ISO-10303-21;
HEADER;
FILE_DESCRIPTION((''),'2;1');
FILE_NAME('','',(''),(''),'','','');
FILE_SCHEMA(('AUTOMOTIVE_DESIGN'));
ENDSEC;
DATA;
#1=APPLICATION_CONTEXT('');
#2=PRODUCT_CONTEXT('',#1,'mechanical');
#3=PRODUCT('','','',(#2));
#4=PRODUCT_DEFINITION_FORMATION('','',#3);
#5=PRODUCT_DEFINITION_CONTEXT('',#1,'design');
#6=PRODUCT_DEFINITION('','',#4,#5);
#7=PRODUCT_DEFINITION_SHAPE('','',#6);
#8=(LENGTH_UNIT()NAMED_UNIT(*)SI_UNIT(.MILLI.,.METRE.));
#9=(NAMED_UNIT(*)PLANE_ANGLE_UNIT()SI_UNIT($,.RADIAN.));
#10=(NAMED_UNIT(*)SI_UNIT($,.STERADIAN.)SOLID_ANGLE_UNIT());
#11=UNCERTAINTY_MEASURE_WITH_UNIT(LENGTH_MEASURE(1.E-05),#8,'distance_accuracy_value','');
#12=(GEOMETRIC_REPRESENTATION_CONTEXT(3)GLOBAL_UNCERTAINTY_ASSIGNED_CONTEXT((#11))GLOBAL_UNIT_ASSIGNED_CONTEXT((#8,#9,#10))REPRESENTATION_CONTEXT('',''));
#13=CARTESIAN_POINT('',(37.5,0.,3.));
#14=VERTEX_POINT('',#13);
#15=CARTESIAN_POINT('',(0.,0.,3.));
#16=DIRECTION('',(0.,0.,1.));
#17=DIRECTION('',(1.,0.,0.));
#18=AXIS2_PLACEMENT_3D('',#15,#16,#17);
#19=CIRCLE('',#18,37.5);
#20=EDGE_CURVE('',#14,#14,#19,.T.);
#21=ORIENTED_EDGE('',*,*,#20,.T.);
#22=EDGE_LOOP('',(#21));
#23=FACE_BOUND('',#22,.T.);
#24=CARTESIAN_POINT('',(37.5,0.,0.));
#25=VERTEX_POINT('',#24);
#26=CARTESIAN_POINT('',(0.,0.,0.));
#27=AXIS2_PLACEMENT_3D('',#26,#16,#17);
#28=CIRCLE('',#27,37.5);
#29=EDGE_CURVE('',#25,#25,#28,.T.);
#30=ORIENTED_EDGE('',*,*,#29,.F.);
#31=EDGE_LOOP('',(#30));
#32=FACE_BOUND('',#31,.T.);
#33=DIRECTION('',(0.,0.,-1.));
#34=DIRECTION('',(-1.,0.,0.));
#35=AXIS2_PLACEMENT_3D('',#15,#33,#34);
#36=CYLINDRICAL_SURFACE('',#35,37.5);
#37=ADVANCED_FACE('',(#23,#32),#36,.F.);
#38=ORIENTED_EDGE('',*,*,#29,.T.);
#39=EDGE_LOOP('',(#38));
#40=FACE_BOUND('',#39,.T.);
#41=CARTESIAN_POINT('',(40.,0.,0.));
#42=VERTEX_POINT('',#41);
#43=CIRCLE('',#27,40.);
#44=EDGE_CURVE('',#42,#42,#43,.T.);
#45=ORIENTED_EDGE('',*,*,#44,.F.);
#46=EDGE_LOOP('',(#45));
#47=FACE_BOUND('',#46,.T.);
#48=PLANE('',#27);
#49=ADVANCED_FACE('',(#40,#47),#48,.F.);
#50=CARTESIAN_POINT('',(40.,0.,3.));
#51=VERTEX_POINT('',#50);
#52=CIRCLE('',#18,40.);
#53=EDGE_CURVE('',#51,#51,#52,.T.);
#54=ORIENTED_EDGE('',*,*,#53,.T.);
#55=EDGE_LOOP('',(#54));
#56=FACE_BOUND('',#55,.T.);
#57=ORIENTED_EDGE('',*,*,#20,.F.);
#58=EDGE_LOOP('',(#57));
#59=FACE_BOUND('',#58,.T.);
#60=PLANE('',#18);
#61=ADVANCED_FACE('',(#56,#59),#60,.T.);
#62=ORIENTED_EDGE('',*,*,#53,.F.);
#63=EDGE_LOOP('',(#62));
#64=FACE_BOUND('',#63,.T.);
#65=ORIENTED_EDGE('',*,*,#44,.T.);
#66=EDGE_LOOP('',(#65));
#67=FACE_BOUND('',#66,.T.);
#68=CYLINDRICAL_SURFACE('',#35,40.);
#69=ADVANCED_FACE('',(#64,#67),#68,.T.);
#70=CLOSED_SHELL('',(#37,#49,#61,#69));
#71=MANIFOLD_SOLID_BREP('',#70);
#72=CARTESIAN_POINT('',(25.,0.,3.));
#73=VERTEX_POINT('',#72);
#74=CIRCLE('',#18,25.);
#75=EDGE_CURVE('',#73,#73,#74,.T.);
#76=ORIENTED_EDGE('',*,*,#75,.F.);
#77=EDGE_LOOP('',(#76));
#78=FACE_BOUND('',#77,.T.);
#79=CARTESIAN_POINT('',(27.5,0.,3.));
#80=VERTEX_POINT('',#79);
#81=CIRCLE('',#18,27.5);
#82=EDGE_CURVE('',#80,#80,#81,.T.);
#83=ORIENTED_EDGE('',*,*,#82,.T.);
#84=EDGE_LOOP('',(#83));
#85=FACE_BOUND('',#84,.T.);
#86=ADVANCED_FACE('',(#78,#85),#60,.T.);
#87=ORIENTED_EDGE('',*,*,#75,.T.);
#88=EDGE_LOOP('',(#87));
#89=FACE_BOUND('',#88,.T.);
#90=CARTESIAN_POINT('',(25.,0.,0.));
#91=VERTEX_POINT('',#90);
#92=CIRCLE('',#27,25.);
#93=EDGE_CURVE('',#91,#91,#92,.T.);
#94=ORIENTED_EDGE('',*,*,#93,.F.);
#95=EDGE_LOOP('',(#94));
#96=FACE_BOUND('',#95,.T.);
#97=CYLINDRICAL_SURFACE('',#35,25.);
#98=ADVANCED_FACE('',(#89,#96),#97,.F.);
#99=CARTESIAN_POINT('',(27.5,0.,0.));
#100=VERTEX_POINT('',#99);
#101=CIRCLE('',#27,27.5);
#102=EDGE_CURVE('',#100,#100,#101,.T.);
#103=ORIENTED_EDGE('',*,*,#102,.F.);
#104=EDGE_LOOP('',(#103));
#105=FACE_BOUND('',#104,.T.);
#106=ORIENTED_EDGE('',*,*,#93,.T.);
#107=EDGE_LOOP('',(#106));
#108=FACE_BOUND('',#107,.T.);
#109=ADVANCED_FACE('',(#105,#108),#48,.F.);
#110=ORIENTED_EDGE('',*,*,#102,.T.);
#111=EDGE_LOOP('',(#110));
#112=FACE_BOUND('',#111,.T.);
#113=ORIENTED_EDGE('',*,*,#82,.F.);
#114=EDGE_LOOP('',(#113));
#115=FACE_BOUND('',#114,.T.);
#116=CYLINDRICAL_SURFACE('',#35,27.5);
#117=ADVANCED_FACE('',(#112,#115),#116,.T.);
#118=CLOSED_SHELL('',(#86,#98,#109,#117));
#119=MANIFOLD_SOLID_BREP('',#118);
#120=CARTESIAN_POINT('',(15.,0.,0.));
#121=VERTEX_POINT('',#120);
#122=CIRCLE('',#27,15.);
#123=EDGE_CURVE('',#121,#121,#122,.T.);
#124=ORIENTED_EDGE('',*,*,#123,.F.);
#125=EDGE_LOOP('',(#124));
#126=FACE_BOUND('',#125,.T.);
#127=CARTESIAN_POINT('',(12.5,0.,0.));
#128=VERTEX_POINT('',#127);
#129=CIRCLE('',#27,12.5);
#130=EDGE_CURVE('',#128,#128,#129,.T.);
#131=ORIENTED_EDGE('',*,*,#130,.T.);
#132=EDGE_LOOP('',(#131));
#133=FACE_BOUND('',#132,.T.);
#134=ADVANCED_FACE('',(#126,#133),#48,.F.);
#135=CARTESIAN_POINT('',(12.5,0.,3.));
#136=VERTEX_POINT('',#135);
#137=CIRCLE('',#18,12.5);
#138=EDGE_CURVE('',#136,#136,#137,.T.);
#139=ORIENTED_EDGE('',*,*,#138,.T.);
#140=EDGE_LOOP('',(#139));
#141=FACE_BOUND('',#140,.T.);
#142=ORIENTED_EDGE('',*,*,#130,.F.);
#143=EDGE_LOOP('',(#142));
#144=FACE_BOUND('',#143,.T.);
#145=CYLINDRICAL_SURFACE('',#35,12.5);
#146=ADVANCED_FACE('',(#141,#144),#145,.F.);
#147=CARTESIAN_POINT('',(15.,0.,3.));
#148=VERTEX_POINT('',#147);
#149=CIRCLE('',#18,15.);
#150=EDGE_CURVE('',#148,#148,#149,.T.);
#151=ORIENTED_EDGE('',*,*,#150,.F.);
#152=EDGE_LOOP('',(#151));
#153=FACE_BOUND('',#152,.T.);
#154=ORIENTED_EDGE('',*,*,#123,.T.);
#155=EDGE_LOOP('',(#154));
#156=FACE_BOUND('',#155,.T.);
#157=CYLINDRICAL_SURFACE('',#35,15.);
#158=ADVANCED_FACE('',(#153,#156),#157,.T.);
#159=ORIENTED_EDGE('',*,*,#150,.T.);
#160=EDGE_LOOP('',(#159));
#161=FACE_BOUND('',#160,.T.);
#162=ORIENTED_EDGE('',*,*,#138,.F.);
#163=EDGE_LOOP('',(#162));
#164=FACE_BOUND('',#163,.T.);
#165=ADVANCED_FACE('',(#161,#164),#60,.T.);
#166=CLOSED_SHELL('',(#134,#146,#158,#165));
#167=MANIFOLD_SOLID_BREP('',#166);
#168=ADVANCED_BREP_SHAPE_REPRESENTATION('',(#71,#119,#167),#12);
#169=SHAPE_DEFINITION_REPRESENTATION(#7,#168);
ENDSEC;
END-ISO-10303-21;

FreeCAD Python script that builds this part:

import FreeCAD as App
import Part
import Sketcher

doc = App.newDocument("Part")
params = doc.addObject("Spreadsheet::Sheet", "Params")
for row, (alias, value) in enumerate([
    ("sketch1_diameter", "80 mm"),
    ("sketch1_diameter2", "75 mm"),
    ("pad1_length", "3 mm"),
    ("sketch2_diameter", "55 mm"),
    ("sketch2_diameter2", "50 mm"),
    ("pad2_length", "3 mm"),
    ("sketch3_diameter", "30 mm"),
    ("sketch3_diameter2", "25 mm"),
    ("pad3_length", "3 mm"),
], start=1):
    params.set(f"A{row}", alias)
    params.set(f"B{row}", "=" + value)
    params.setAlias(f"B{row}", alias)

body = doc.addObject("PartDesign::Body", "Body")

# Sketch on XY plane
sketch1 = body.newObject("Sketcher::SketchObject", "Sketch")
sketch1.AttachmentSupport = (doc.getObject("XY_Plane"), [""])
sketch1.MapMode = "FlatFace"
sketch1.addGeometry([
    Part.Circle(App.Vector(0, 0, 0), App.Vector(0, 0, 1), 40),
    Part.Circle(App.Vector(0, 0, 0), App.Vector(0, 0, 1), 38),
], False)
sketch1.addConstraint([
    Sketcher.Constraint("Coincident", 0, 3, -1, 1),
    Sketcher.Constraint("Coincident", 1, 3, -1, 1),
    Sketcher.Constraint("Diameter", 0, 80.0),
    Sketcher.Constraint("Diameter", 1, 75.0),
])
sketch1.setExpression("Constraints[2]", "Params.sketch1_diameter")
sketch1.setExpression("Constraints[3]", "Params.sketch1_diameter2")
pad1 = body.newObject("PartDesign::Pad", "Pad")
pad1.Profile = sketch1
pad1.setExpression("Length", "Params.pad1_length")
body2 = doc.addObject("PartDesign::Body", "Body001")

# Sketch on XY plane
sketch2 = body2.newObject("Sketcher::SketchObject", "Sketch001")
sketch2.AttachmentSupport = (doc.getObject("XY_Plane001"), [""])
sketch2.MapMode = "FlatFace"
sketch2.addGeometry([
    Part.Circle(App.Vector(0, 0, 0), App.Vector(0, 0, 1), 28),
    Part.Circle(App.Vector(0, 0, 0), App.Vector(0, 0, 1), 25),
], False)
sketch2.addConstraint([
    Sketcher.Constraint("Coincident", 0, 3, -1, 1),
    Sketcher.Constraint("Coincident", 1, 3, -1, 1),
    Sketcher.Constraint("Diameter", 0, 55.0),
    Sketcher.Constraint("Diameter", 1, 50.0),
])
sketch2.setExpression("Constraints[2]", "Params.sketch2_diameter")
sketch2.setExpression("Constraints[3]", "Params.sketch2_diameter2")
pad2 = body2.newObject("PartDesign::Pad", "Pad001")
pad2.Profile = sketch2
pad2.setExpression("Length", "Params.pad2_length")
body3 = doc.addObject("PartDesign::Body", "Body002")

# Sketch on XY plane
sketch3 = body3.newObject("Sketcher::SketchObject", "Sketch002")
sketch3.AttachmentSupport = (doc.getObject("XY_Plane002"), [""])
sketch3.MapMode = "FlatFace"
sketch3.addGeometry([
    Part.Circle(App.Vector(0, 0, 0), App.Vector(0, 0, 1), 15),
    Part.Circle(App.Vector(0, 0, 0), App.Vector(0, 0, 1), 12),
], False)
sketch3.addConstraint([
    Sketcher.Constraint("Coincident", 0, 3, -1, 1),
    Sketcher.Constraint("Coincident", 1, 3, -1, 1),
    Sketcher.Constraint("Diameter", 0, 30.0),
    Sketcher.Constraint("Diameter", 1, 25.0),
])
sketch3.setExpression("Constraints[2]", "Params.sketch3_diameter")
sketch3.setExpression("Constraints[3]", "Params.sketch3_diameter2")
pad3 = body3.newObject("PartDesign::Pad", "Pad002")
pad3.Profile = sketch3
pad3.setExpression("Length", "Params.pad3_length")

doc.recompute()
